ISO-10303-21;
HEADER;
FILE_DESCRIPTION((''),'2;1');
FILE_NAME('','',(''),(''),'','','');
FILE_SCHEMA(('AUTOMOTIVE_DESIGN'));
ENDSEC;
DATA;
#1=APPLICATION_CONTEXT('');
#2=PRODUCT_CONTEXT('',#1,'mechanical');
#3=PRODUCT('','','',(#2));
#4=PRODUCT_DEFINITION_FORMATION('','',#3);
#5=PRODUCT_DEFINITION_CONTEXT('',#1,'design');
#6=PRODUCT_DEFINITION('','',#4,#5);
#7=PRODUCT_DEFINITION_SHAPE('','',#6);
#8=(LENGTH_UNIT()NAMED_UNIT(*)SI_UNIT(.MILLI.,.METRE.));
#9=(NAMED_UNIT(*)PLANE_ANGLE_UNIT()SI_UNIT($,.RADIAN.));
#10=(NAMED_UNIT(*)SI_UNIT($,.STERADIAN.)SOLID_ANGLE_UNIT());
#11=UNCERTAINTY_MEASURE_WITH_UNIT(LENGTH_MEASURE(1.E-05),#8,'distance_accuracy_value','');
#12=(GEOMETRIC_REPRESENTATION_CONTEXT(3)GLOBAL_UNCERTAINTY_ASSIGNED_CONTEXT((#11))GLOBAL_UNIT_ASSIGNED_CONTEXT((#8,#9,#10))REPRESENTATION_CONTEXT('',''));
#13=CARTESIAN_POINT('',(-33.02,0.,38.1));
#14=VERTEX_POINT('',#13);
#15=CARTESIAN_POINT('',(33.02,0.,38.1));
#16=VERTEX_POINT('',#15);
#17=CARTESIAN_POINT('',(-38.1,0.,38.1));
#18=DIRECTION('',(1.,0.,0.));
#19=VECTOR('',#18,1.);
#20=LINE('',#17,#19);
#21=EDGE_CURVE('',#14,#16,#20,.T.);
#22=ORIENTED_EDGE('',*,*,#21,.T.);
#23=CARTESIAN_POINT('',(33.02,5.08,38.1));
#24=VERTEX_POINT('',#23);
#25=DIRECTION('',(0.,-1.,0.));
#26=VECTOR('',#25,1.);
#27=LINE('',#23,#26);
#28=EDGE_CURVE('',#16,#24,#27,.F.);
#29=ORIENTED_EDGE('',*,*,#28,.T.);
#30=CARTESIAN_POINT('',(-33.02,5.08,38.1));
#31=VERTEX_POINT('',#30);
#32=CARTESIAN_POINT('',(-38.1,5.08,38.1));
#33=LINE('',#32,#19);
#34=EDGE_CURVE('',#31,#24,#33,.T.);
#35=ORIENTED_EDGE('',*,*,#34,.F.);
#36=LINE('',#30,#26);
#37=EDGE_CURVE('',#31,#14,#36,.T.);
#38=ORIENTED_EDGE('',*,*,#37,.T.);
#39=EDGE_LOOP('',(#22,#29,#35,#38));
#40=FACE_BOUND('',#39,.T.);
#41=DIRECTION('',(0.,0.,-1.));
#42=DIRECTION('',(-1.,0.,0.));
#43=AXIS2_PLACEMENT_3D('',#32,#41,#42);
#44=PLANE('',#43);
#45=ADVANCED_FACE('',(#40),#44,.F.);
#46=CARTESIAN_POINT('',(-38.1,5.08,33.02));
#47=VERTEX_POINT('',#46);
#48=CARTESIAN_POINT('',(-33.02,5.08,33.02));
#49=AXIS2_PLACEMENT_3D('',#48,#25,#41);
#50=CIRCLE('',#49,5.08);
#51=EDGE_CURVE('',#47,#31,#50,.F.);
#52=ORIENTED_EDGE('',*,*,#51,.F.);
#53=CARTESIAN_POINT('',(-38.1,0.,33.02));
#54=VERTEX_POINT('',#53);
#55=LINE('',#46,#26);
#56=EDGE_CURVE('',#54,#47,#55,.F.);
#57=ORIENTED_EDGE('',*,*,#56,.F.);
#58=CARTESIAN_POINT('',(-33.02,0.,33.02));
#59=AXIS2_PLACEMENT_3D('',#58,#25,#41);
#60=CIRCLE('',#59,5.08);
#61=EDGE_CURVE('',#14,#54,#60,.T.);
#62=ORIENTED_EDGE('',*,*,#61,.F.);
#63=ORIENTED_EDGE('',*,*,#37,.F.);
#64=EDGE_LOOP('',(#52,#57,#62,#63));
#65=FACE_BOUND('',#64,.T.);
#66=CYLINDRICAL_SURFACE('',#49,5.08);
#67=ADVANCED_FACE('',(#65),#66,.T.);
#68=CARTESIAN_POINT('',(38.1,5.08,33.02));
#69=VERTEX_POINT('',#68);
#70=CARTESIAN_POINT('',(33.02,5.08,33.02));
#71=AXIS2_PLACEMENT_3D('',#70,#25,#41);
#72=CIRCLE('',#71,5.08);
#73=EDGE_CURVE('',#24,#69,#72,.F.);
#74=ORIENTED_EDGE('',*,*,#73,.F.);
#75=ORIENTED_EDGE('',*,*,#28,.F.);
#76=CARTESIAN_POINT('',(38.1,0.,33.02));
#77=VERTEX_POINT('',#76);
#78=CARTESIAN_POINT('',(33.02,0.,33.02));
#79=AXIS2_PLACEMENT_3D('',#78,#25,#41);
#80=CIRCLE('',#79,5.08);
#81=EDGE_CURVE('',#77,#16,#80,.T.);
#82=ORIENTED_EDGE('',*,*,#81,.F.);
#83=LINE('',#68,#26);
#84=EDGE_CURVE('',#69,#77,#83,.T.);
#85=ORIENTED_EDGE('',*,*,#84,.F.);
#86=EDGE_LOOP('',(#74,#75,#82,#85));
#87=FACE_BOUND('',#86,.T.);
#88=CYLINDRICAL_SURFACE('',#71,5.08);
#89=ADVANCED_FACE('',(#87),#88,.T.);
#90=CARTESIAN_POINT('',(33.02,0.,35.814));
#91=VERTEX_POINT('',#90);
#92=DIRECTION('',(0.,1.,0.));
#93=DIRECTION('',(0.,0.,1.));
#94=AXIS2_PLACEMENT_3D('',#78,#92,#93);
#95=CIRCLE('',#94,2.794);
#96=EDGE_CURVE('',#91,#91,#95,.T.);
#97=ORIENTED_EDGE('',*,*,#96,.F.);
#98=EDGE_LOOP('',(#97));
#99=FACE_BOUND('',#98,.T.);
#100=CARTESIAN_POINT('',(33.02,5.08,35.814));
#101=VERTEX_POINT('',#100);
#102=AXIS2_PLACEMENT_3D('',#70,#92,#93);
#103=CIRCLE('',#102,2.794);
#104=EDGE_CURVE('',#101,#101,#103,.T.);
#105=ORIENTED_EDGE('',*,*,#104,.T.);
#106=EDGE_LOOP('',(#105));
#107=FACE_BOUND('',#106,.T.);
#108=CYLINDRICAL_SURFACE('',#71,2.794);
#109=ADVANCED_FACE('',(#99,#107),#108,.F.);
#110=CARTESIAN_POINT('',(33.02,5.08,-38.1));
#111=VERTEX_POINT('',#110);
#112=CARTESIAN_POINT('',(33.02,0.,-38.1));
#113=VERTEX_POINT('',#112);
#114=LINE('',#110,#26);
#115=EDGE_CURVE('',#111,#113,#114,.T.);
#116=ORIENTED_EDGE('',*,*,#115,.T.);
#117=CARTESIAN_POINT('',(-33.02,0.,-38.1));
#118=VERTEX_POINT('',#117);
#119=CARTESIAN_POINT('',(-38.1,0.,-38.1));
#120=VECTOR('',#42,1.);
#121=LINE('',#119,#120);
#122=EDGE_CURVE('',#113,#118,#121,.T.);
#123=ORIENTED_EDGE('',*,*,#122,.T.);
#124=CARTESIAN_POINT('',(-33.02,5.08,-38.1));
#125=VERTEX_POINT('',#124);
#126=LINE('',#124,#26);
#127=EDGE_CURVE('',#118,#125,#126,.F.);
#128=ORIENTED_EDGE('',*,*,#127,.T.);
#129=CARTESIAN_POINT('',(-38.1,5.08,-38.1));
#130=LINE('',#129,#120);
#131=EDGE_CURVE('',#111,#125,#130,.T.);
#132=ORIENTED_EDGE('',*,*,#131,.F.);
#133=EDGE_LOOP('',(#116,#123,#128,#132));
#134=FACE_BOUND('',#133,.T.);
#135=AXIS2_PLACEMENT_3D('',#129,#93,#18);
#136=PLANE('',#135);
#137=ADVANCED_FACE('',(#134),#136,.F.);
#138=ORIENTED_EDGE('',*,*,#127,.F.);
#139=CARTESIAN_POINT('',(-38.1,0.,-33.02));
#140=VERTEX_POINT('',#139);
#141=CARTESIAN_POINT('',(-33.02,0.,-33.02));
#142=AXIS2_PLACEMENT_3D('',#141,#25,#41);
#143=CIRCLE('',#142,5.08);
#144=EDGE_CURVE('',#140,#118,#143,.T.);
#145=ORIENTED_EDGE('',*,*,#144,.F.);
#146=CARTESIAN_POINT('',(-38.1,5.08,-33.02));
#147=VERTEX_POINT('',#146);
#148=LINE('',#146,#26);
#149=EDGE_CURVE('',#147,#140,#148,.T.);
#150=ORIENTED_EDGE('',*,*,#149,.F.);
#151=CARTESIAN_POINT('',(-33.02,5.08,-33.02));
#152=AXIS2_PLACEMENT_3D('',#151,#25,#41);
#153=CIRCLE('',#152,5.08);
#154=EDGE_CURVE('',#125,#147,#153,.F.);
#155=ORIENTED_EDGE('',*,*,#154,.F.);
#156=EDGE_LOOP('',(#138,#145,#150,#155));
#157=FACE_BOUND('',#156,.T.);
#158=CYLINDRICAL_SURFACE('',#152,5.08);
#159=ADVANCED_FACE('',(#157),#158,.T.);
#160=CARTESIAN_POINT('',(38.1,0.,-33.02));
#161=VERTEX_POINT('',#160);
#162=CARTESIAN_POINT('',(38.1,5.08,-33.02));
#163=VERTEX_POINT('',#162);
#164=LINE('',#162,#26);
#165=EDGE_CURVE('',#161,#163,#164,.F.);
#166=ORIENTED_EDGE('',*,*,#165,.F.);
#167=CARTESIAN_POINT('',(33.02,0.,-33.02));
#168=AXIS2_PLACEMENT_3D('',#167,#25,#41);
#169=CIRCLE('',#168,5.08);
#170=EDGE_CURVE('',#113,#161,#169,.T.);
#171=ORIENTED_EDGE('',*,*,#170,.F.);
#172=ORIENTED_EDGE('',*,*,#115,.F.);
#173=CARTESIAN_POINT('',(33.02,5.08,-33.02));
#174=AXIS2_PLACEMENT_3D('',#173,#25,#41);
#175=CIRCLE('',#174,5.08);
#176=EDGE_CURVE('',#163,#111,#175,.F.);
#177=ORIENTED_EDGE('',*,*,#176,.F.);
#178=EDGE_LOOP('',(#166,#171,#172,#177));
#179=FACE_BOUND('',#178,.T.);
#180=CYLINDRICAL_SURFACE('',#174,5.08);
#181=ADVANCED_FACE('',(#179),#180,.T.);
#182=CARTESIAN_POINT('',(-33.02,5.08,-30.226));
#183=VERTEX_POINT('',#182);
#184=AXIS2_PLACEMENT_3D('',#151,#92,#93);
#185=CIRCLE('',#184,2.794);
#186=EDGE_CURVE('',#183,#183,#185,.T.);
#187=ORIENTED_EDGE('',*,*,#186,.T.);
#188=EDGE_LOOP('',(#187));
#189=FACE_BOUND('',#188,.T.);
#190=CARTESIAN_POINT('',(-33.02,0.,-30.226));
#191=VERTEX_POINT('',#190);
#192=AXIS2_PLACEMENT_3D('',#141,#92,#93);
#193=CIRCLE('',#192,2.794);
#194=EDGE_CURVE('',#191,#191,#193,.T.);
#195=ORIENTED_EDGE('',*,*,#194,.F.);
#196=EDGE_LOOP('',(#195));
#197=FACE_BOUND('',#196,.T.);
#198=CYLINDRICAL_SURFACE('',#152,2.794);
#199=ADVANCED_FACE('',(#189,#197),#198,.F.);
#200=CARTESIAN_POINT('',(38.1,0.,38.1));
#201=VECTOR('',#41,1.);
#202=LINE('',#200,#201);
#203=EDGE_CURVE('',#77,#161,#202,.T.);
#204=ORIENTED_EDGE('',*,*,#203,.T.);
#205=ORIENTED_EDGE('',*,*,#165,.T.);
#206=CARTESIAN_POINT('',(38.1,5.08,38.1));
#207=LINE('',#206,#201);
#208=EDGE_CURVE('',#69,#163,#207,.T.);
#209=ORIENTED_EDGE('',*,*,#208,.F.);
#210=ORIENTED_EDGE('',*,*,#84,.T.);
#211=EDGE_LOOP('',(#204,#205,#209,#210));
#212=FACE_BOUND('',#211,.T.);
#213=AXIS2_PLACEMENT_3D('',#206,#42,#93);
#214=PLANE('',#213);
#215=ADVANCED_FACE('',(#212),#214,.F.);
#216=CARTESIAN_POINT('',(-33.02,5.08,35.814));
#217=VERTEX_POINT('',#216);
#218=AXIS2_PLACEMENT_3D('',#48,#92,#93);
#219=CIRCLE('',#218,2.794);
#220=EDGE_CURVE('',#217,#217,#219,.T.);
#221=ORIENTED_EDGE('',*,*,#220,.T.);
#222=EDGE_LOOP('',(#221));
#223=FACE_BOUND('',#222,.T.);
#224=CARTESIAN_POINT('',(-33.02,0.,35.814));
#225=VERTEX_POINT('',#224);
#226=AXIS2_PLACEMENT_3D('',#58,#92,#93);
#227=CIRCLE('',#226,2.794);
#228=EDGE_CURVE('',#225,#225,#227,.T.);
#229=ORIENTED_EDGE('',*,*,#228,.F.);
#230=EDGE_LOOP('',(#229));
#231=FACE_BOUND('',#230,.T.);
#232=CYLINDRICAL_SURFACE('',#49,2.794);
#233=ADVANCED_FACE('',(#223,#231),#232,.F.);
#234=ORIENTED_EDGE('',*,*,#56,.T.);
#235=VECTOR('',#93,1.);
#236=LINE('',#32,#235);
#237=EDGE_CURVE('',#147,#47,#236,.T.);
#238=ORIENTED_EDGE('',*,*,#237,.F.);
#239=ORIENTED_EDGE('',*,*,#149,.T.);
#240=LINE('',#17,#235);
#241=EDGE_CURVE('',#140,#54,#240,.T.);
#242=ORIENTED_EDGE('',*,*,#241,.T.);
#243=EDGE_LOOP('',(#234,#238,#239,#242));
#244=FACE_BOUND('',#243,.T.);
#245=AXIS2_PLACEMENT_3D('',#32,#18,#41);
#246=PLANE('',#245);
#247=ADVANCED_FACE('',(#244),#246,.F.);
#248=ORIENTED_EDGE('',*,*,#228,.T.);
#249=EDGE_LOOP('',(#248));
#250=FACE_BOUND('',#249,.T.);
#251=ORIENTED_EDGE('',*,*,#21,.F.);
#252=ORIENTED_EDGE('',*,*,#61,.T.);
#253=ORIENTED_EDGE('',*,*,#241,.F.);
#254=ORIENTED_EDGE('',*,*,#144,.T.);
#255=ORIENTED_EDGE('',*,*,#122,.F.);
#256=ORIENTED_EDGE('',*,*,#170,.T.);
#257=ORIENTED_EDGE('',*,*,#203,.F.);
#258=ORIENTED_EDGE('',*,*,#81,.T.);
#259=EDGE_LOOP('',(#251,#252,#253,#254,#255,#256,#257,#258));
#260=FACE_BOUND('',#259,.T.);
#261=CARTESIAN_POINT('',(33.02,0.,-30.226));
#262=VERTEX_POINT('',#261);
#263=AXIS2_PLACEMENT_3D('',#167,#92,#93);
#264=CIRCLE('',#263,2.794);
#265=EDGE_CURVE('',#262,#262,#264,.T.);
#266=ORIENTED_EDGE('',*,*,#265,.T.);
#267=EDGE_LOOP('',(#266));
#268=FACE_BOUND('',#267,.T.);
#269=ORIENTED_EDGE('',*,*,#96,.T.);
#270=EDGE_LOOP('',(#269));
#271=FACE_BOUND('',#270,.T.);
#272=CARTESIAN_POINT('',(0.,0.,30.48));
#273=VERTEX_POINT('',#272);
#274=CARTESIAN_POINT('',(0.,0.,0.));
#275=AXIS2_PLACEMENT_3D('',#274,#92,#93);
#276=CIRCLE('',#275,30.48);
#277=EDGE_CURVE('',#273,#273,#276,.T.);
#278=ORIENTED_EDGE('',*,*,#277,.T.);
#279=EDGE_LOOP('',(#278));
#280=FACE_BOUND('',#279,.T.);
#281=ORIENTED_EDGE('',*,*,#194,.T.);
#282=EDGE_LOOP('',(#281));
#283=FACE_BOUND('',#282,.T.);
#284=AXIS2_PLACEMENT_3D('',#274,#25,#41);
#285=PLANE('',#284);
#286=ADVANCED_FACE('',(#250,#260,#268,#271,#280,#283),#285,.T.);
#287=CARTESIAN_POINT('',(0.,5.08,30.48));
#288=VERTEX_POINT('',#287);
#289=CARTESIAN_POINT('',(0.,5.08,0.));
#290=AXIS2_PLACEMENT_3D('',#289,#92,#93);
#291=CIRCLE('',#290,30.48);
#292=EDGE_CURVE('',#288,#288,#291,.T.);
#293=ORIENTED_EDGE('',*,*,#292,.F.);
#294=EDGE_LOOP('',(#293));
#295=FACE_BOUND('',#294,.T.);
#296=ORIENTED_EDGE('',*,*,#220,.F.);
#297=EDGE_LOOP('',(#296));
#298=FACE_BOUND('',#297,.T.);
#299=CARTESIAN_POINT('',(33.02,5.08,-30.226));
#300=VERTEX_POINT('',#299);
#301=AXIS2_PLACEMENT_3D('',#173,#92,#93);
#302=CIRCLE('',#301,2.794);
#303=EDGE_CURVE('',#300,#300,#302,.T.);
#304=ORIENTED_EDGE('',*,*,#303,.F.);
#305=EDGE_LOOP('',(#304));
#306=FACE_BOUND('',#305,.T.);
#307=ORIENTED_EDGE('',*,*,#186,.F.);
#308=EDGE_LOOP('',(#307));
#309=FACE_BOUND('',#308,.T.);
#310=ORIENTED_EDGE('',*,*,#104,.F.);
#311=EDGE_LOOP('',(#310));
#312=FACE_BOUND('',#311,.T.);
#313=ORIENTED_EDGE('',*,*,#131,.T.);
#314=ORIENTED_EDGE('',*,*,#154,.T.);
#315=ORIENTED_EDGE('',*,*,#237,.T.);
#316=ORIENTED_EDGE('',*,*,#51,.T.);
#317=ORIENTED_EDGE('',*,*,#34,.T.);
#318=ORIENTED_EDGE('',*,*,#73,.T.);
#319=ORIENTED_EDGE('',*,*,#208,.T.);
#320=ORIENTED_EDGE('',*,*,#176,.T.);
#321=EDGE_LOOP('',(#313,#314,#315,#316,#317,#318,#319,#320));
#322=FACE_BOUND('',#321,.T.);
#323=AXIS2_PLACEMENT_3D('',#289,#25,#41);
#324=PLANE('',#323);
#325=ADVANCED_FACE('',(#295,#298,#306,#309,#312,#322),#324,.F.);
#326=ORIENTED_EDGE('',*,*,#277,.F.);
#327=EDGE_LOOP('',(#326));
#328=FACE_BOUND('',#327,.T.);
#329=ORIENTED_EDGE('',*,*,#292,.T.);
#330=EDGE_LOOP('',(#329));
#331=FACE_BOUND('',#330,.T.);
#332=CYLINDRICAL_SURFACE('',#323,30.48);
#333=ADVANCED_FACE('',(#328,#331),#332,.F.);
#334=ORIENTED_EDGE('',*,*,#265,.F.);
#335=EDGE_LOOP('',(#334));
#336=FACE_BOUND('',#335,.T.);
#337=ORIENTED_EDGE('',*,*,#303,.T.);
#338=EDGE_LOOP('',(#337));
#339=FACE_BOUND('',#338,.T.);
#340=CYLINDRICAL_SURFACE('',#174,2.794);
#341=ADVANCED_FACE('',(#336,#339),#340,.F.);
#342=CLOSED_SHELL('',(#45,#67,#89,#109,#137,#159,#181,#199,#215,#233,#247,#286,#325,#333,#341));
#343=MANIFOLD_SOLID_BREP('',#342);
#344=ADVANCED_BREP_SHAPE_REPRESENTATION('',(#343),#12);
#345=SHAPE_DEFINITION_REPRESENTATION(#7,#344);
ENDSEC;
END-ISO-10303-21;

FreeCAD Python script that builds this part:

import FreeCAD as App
import Part
import Sketcher

V = App.Vector
Q = App.Units.Quantity


def edges_at(feature, points):
    """Names of the edges that pass closest to the given points."""
    edges = feature.Shape.Edges
    near = lambda p: min(range(len(edges)), key=lambda i: edges[i].distToShape(Part.Vertex(*p))[0])
    return sorted({f"Edge{near(p) + 1}" for p in points})

doc = App.newDocument("Part")
params = doc.addObject("Spreadsheet::Sheet", "Params")
for row, (alias, value) in enumerate([
    ("sketch1_diameter", "2.4 in"),
    ("sketch1_diameter2", "0.22 in"),
    ("sketch1_width", "3 in"),
    ("pad1_length", "0.2 in"),
    ("fillet_radius", "0.2 in"),
], start=1):
    params.set(f"A{row}", alias)
    params.set(f"B{row}", "=" + value)
    params.setAlias(f"B{row}", alias)

body = doc.addObject("PartDesign::Body", "Body")

sketch1 = doc.addObject("Sketcher::SketchObject", "Sketch")
body.addObject(sketch1)
sketch1.AttachmentSupport = (doc.XZ_Plane, [""])
sketch1.MapMode = "FlatFace"
sketch1.addGeometry([
    Part.LineSegment(V(-38.1, -38.1, 0), V(-38.1, 38.1, 0)),
    Part.LineSegment(V(-38.1, 38.1, 0), V(38.1, 38.1, 0)),
    Part.LineSegment(V(38.1, 38.1, 0), V(38.1, -38.1, 0)),
    Part.LineSegment(V(38.1, -38.1, 0), V(-38.1, -38.1, 0)),
    Part.Circle(V(-33.02, 33.02, 0), V(0, 0, 1), 2.794),
    Part.Circle(V(33.02, 33.02, 0), V(0, 0, 1), 2.794),
    Part.Circle(V(0, 0, 0), V(0, 0, 1), 30.48),
    Part.Circle(V(-33.02, -33.02, 0), V(0, 0, 1), 2.794),
    Part.Circle(V(33.02, -33.02, 0), V(0, 0, 1), 2.794),
], False)
sketch1.addConstraint([
    Sketcher.Constraint("Coincident", 0, 2, 1, 1),
    Sketcher.Constraint("Coincident", 1, 2, 2, 1),
    Sketcher.Constraint("Coincident", 2, 2, 3, 1),
    Sketcher.Constraint("Coincident", 3, 2, 0, 1),
    Sketcher.Constraint("Vertical", 0),
    Sketcher.Constraint("Horizontal", 1),
    Sketcher.Constraint("Vertical", 2),
    Sketcher.Constraint("Horizontal", 3),
    Sketcher.Constraint("Coincident", 6, 3, -1, 1),
    Sketcher.Constraint("Equal", 4, 5),
    Sketcher.Constraint("Equal", 5, 7),
    Sketcher.Constraint("Equal", 7, 8),
    Sketcher.Constraint("Symmetric", 5, 3, 7, 3, -1, 1),
    Sketcher.Constraint("Symmetric", 4, 3, 8, 3, -1, 1),
    Sketcher.Constraint("Symmetric", 0, 2, 2, 2, -1, 1),
    Sketcher.Constraint("Symmetric", 4, 3, 5, 3, -2),
    Sketcher.Constraint("Equal", 3, 0),
    Sketcher.Constraint("Diameter", 6, Q("2.4 in")),
    Sketcher.Constraint("Diameter", 4, Q("0.22 in")),
    Sketcher.Constraint("DistanceX", 1, 1, 1, 2, Q("3 in")),
    Sketcher.Constraint("DistanceX", 4, 3, -1, 1, Q("1.3 in")),
    Sketcher.Constraint("DistanceY", -1, 1, 4, 3, Q("1.3 in")),
])
sketch1.setExpression("Constraints[17]", "Params.sketch1_diameter")
sketch1.setExpression("Constraints[18]", "Params.sketch1_diameter2")
sketch1.setExpression("Constraints[19]", "Params.sketch1_width")
pad1 = doc.addObject("PartDesign::Pad", "Pad")
body.addObject(pad1)
pad1.Profile = sketch1
pad1.setExpression("Length", "Params.pad1_length")
pad1.Reversed = True
doc.recompute()

fillet = doc.addObject("PartDesign::Fillet", "Fillet")
body.addObject(fillet)
fillet.Base = (pad1, edges_at(pad1, [
    (38.1, 2.54, 38.1),
    (-38.1, 2.54, 38.1),
    (-38.1, 2.54, -38.1),
    (38.1, 2.54, -38.1),
]))
fillet.setExpression("Radius", "Params.fillet_radius")

doc.recompute()
